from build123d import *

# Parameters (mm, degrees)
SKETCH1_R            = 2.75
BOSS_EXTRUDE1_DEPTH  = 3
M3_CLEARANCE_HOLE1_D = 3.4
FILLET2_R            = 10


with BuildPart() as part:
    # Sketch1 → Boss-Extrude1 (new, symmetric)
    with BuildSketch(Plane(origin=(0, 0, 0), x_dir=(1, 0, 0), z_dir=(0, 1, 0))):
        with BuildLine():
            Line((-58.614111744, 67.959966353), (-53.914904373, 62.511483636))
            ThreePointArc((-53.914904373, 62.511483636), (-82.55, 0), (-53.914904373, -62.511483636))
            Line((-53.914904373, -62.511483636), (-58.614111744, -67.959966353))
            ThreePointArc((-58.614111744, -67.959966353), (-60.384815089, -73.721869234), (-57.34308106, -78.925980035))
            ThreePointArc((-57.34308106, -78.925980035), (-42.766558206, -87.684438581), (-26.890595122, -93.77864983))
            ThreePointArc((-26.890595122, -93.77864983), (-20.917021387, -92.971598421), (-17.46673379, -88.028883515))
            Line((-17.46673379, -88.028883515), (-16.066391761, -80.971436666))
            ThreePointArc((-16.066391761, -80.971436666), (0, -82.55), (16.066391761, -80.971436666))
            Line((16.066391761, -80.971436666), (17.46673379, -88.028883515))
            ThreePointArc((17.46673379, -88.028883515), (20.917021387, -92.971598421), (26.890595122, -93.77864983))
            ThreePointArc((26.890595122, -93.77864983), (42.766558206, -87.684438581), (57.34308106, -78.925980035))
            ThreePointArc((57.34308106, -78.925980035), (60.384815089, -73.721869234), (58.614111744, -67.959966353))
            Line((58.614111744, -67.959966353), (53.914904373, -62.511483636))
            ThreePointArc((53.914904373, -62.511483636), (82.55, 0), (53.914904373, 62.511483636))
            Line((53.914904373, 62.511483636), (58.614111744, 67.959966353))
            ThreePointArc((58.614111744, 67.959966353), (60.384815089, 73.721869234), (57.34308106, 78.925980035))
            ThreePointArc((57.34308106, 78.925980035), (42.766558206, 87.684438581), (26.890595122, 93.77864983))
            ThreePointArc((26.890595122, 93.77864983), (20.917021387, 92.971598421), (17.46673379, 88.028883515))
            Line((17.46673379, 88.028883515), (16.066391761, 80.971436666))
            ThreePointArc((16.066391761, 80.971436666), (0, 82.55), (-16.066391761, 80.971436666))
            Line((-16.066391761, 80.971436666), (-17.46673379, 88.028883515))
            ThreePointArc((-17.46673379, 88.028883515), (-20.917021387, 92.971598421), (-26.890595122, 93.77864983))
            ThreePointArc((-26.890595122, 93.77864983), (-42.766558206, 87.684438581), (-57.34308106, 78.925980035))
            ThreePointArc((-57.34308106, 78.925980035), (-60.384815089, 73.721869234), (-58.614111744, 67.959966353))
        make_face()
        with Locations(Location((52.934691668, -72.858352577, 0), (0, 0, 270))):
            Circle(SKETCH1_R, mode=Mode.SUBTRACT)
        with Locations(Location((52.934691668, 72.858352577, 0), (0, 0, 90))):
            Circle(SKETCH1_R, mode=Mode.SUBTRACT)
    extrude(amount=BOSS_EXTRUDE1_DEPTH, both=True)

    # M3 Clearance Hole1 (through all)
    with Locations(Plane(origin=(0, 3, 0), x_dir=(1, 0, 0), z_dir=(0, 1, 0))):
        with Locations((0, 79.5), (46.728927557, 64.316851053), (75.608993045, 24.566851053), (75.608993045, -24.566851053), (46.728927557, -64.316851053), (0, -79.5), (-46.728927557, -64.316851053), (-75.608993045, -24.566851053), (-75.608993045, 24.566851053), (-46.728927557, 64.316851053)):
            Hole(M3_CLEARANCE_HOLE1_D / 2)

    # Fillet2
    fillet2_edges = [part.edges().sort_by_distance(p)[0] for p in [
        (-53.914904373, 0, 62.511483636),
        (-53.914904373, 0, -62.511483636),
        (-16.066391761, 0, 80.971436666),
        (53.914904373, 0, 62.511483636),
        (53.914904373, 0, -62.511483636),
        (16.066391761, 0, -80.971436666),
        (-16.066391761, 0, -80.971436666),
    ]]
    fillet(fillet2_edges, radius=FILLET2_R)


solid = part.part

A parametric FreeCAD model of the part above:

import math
import FreeCAD as App
import Part
import Sketcher
from FreeCAD import Vector


def edges_at(feature, points):
    """Names of the edges that pass closest to the given points."""
    edges = feature.Shape.Edges
    near = lambda p: min(range(len(edges)), key=lambda i: edges[i].distToShape(Part.Vertex(*p))[0])
    return sorted({f"Edge{near(p) + 1}" for p in points})

doc = App.newDocument("Part")
body = doc.addObject("PartDesign::Body", "Body")

# Sketch on XZ plane
sketch1 = body.newObject("Sketcher::SketchObject", "Sketch")
sketch1.AttachmentSupport = (doc.getObject("XZ_Plane"), [""])
sketch1.MapMode = "FlatFace"
sketch1.addGeometry(Part.LineSegment(Vector(-58.6, -68, 0), Vector(-53.9, -62.5, 0)), False)
sketch1.addGeometry(Part.ArcOfCircle(Part.Circle(Vector(0, 0, 0), Vector(0, 0, 1), 82.5), math.radians(131), math.radians(229)), False)
sketch1.addGeometry(Part.LineSegment(Vector(-53.9, 62.5, 0), Vector(-58.6, 68, 0)), False)
sketch1.addGeometry(Part.ArcOfCircle(Part.Circle(Vector(-52.9, 72.9, 0), Vector(0, 0, 1), 7.5), math.radians(126), math.radians(221)), False)
sketch1.addGeometry(Part.ArcOfCircle(Part.Circle(Vector(0, 0, 0), Vector(0, 0, 1), 97.6), math.radians(106), math.radians(126)), False)
sketch1.addGeometry(Part.ArcOfCircle(Part.Circle(Vector(-24.8, 86.6, 0), Vector(0, 0, 1), 7.5), math.radians(11), math.radians(106)), False)
sketch1.addGeometry(Part.LineSegment(Vector(-17.5, 88, 0), Vector(-16.1, 81, 0)), False)
sketch1.addGeometry(Part.ArcOfCircle(Part.Circle(Vector(0, 0, 0), Vector(0, 0, 1), 82.5), math.radians(79), math.radians(101)), False)
sketch1.addGeometry(Part.LineSegment(Vector(16.1, 81, 0), Vector(17.5, 88, 0)), False)
sketch1.addGeometry(Part.ArcOfCircle(Part.Circle(Vector(24.8, 86.6, 0), Vector(0, 0, 1), 7.5), math.radians(74), math.radians(169)), False)
sketch1.addGeometry(Part.ArcOfCircle(Part.Circle(Vector(0, 0, 0), Vector(0, 0, 1), 97.6), math.radians(54), math.radians(74)), False)
sketch1.addGeometry(Part.ArcOfCircle(Part.Circle(Vector(52.9, 72.9, 0), Vector(0, 0, 1), 7.5), math.radians(-41), math.radians(54)), False)
sketch1.addGeometry(Part.LineSegment(Vector(58.6, 68, 0), Vector(53.9, 62.5, 0)), False)
sketch1.addGeometry(Part.ArcOfCircle(Part.Circle(Vector(0, 0, 0), Vector(0, 0, 1), 82.5), math.radians(-49), math.radians(49)), False)
sketch1.addGeometry(Part.LineSegment(Vector(53.9, -62.5, 0), Vector(58.6, -68, 0)), False)
sketch1.addGeometry(Part.ArcOfCircle(Part.Circle(Vector(52.9, -72.9, 0), Vector(0, 0, 1), 7.5), math.radians(-54), math.radians(41)), False)
sketch1.addGeometry(Part.ArcOfCircle(Part.Circle(Vector(0, 0, 0), Vector(0, 0, 1), 97.6), math.radians(-74), math.radians(-54)), False)
sketch1.addGeometry(Part.ArcOfCircle(Part.Circle(Vector(24.8, -86.6, 0), Vector(0, 0, 1), 7.5), math.radians(-169), math.radians(-74)), False)
sketch1.addGeometry(Part.LineSegment(Vector(17.5, -88, 0), Vector(16.1, -81, 0)), False)
sketch1.addGeometry(Part.ArcOfCircle(Part.Circle(Vector(0, 0, 0), Vector(0, 0, 1), 82.5), math.radians(-101), math.radians(-79)), False)
sketch1.addGeometry(Part.LineSegment(Vector(-16.1, -81, 0), Vector(-17.5, -88, 0)), False)
sketch1.addGeometry(Part.ArcOfCircle(Part.Circle(Vector(-24.8, -86.6, 0), Vector(0, 0, 1), 7.5), math.radians(-106), math.radians(-11)), False)
sketch1.addGeometry(Part.ArcOfCircle(Part.Circle(Vector(0, 0, 0), Vector(0, 0, 1), 97.6), math.radians(-126), math.radians(-106)), False)
sketch1.addGeometry(Part.ArcOfCircle(Part.Circle(Vector(-52.9, -72.9, 0), Vector(0, 0, 1), 7.5), math.radians(139), math.radians(234)), False)
sketch1.addGeometry(Part.Circle(Vector(52.9, 72.9, 0), Vector(0, 0, 1), 2.8), False)
sketch1.addGeometry(Part.Circle(Vector(52.9, -72.9, 0), Vector(0, 0, 1), 2.8), False)
sketch1.addConstraint(Sketcher.Constraint("Coincident", 0, 2, 1, 2))
sketch1.addConstraint(Sketcher.Constraint("Coincident", 1, 1, 2, 1))
sketch1.addConstraint(Sketcher.Constraint("Tangent", 2, 2, 3, 2))
sketch1.addConstraint(Sketcher.Constraint("Tangent", 3, 1, 4, 2))
sketch1.addConstraint(Sketcher.Constraint("Tangent", 4, 1, 5, 2))
sketch1.addConstraint(Sketcher.Constraint("Tangent", 5, 1, 6, 1))
sketch1.addConstraint(Sketcher.Constraint("Coincident", 6, 2, 7, 2))
sketch1.addConstraint(Sketcher.Constraint("Coincident", 7, 1, 8, 1))
sketch1.addConstraint(Sketcher.Constraint("Tangent", 8, 2, 9, 2))
sketch1.addConstraint(Sketcher.Constraint("Tangent", 9, 1, 10, 2))
sketch1.addConstraint(Sketcher.Constraint("Tangent", 10, 1, 11, 2))
sketch1.addConstraint(Sketcher.Constraint("Tangent", 11, 1, 12, 1))
sketch1.addConstraint(Sketcher.Constraint("Coincident", 12, 2, 13, 2))
sketch1.addConstraint(Sketcher.Constraint("Coincident", 13, 1, 14, 1))
sketch1.addConstraint(Sketcher.Constraint("Tangent", 14, 2, 15, 2))
sketch1.addConstraint(Sketcher.Constraint("Tangent", 15, 1, 16, 2))
sketch1.addConstraint(Sketcher.Constraint("Tangent", 16, 1, 17, 2))
sketch1.addConstraint(Sketcher.Constraint("Tangent", 17, 1, 18, 1))
sketch1.addConstraint(Sketcher.Constraint("Coincident", 18, 2, 19, 2))
sketch1.addConstraint(Sketcher.Constraint("Coincident", 19, 1, 20, 1))
sketch1.addConstraint(Sketcher.Constraint("Tangent", 20, 2, 21, 2))
sketch1.addConstraint(Sketcher.Constraint("Tangent", 21, 1, 22, 2))
sketch1.addConstraint(Sketcher.Constraint("Tangent", 22, 1, 23, 2))
sketch1.addConstraint(Sketcher.Constraint("Tangent", 23, 1, 0, 1))
sketch1.addConstraint(Sketcher.Constraint("Coincident", 1, 3, -1, 1))
sketch1.addConstraint(Sketcher.Constraint("Coincident", 4, 3, -1, 1))
sketch1.addConstraint(Sketcher.Constraint("Coincident", 7, 3, -1, 1))
sketch1.addConstraint(Sketcher.Constraint("Coincident", 10, 3, -1, 1))
sketch1.addConstraint(Sketcher.Constraint("Coincident", 13, 3, -1, 1))
sketch1.addConstraint(Sketcher.Constraint("Coincident", 16, 3, -1, 1))
sketch1.addConstraint(Sketcher.Constraint("Coincident", 19, 3, -1, 1))
sketch1.addConstraint(Sketcher.Constraint("Coincident", 22, 3, -1, 1))
sketch1.addConstraint(Sketcher.Constraint("Coincident", 24, 3, 11, 3))
sketch1.addConstraint(Sketcher.Constraint("Coincident", 25, 3, 15, 3))
sketch1.addConstraint(Sketcher.Constraint("Equal", 3, 5))
sketch1.addConstraint(Sketcher.Constraint("Equal", 1, 7))
sketch1.addConstraint(Sketcher.Constraint("Equal", 5, 9))
sketch1.addConstraint(Sketcher.Constraint("Equal", 4, 10))
sketch1.addConstraint(Sketcher.Constraint("Equal", 9, 11))
sketch1.addConstraint(Sketcher.Constraint("Equal", 7, 13))
sketch1.addConstraint(Sketcher.Constraint("Equal", 11, 15))
sketch1.addConstraint(Sketcher.Constraint("Equal", 10, 16))
sketch1.addConstraint(Sketcher.Constraint("Equal", 15, 17))
sketch1.addConstraint(Sketcher.Constraint("Equal", 13, 19))
sketch1.addConstraint(Sketcher.Constraint("Equal", 17, 21))
sketch1.addConstraint(Sketcher.Constraint("Equal", 16, 22))
sketch1.addConstraint(Sketcher.Constraint("Equal", 21, 23))
sketch1.addConstraint(Sketcher.Constraint("Equal", 24, 25))
sketch1.addConstraint(Sketcher.Constraint("Symmetric", 2, 2, 14, 2, -1, 1))
sketch1.addConstraint(Sketcher.Constraint("Symmetric", 5, 1, 17, 1, -1, 1))
sketch1.addConstraint(Sketcher.Constraint("Symmetric", 8, 2, 20, 2, -1, 1))
sketch1.addConstraint(Sketcher.Constraint("Symmetric", 11, 1, 23, 1, -1, 1))
sketch1.addConstraint(Sketcher.Constraint("Symmetric", 5, 1, 8, 2, -2))
sketch1.addConstraint(Sketcher.Constraint("Symmetric", 2, 2, 11, 1, -2))
sketch1.addConstraint(Sketcher.Constraint("Equal", 2, 6))
sketch1.addConstraint(Sketcher.Constraint("Diameter", 24, 5.5))
sketch1.addConstraint(Sketcher.Constraint("Radius", 3, 7.5))
sketch1.addConstraint(Sketcher.Constraint("Radius", 1, 82.55))
sketch1.addConstraint(Sketcher.Constraint("Radius", 4, 97.557876))
sketch1.addConstraint(Sketcher.Constraint("DistanceX", 3, 3, 6, 2, 36.8683))
sketch1.addConstraint(Sketcher.Constraint("DistanceX", 3, 3, -1, 1, 52.934692))
sketch1.addConstraint(Sketcher.Constraint("DistanceX", 2, 2, -1, 1, 58.614112))
pad1 = body.newObject("PartDesign::Pad", "Pad")
pad1.Profile = sketch1
pad1.Length = 6
pad1.Midplane = True

# Sketch on XZ plane
sketch2 = body.newObject("Sketcher::SketchObject", "Sketch001")
sketch2.AttachmentSupport = (doc.getObject("XZ_Plane"), [""])
sketch2.MapMode = "FlatFace"
sketch2.AttachmentOffset = App.Placement(Vector(0, 0, -3), App.Rotation())
sketch2.addGeometry(Part.Circle(Vector(0, -79.5, 0), Vector(0, 0, 1), 1.7), False)
sketch2.addGeometry(Part.Circle(Vector(46.7, -64.3, 0), Vector(0, 0, 1), 1.7), False)
sketch2.addGeometry(Part.Circle(Vector(75.6, -24.6, 0), Vector(0, 0, 1), 1.7), False)
sketch2.addGeometry(Part.Circle(Vector(75.6, 24.6, 0), Vector(0, 0, 1), 1.7), False)
sketch2.addGeometry(Part.Circle(Vector(46.7, 64.3, 0), Vector(0, 0, 1), 1.7), False)
sketch2.addGeometry(Part.Circle(Vector(0, 79.5, 0), Vector(0, 0, 1), 1.7), False)
sketch2.addGeometry(Part.Circle(Vector(-46.7, 64.3, 0), Vector(0, 0, 1), 1.7), False)
sketch2.addGeometry(Part.Circle(Vector(-75.6, 24.6, 0), Vector(0, 0, 1), 1.7), False)
sketch2.addGeometry(Part.Circle(Vector(-75.6, -24.6, 0), Vector(0, 0, 1), 1.7), False)
sketch2.addGeometry(Part.Circle(Vector(-46.7, -64.3, 0), Vector(0, 0, 1), 1.7), False)
sketch2.addConstraint(Sketcher.Constraint("Equal", 0, 1))
sketch2.addConstraint(Sketcher.Constraint("Equal", 1, 2))
sketch2.addConstraint(Sketcher.Constraint("Equal", 2, 3))
sketch2.addConstraint(Sketcher.Constraint("Equal", 3, 4))
sketch2.addConstraint(Sketcher.Constraint("Equal", 4, 5))
sketch2.addConstraint(Sketcher.Constraint("Equal", 5, 6))
sketch2.addConstraint(Sketcher.Constraint("Equal", 6, 7))
sketch2.addConstraint(Sketcher.Constraint("Equal", 7, 8))
sketch2.addConstraint(Sketcher.Constraint("Equal", 8, 9))
sketch2.addConstraint(Sketcher.Constraint("Symmetric", 0, 3, 5, 3, -1, 1))
sketch2.addConstraint(Sketcher.Constraint("Symmetric", 1, 3, 6, 3, -1, 1))
sketch2.addConstraint(Sketcher.Constraint("Symmetric", 2, 3, 7, 3, -1, 1))
sketch2.addConstraint(Sketcher.Constraint("Symmetric", 3, 3, 8, 3, -1, 1))
sketch2.addConstraint(Sketcher.Constraint("Symmetric", 4, 3, 9, 3, -1, 1))
sketch2.addConstraint(Sketcher.Constraint("Symmetric", 4, 3, 6, 3, -2))
sketch2.addConstraint(Sketcher.Constraint("Symmetric", 3, 3, 7, 3, -2))
sketch2.addConstraint(Sketcher.Constraint("PointOnObject", 0, 3, -2))
sketch2.addConstraint(Sketcher.Constraint("Diameter", 0, 3.4))
sketch2.addConstraint(Sketcher.Constraint("DistanceY", 0, 3, 5, 3, 159.0))
sketch2.addConstraint(Sketcher.Constraint("DistanceY", 1, 3, 2, 3, 39.75))
sketch2.addConstraint(Sketcher.Constraint("DistanceY", 1, 3, -1, 1, 64.316851))
sketch2.addConstraint(Sketcher.Constraint("DistanceX", 6, 3, 3, 3, 122.337921))
sketch2.addConstraint(Sketcher.Constraint("DistanceX", -1, 1, 1, 3, 46.728928))
doc.recompute()
hole = body.newObject("PartDesign::Hole", "Hole")
hole.Profile = sketch2
hole.ThreadType = "None"
hole.Diameter = 3.4
hole.DepthType = "ThroughAll"
hole.Reversed = True
doc.recompute()

fillet = body.newObject("PartDesign::Fillet", "Fillet")
fillet.Base = (hole, edges_at(hole, [
    (-53.915, 0, 62.511),
    (-53.915, 0, -62.511),
    (-16.066, 0, 80.971),
    (53.915, 0, 62.511),
    (53.915, 0, -62.511),
    (16.066, 0, -80.971),
    (-16.066, 0, -80.971),
]))
fillet.Radius = 10

doc.recompute()
